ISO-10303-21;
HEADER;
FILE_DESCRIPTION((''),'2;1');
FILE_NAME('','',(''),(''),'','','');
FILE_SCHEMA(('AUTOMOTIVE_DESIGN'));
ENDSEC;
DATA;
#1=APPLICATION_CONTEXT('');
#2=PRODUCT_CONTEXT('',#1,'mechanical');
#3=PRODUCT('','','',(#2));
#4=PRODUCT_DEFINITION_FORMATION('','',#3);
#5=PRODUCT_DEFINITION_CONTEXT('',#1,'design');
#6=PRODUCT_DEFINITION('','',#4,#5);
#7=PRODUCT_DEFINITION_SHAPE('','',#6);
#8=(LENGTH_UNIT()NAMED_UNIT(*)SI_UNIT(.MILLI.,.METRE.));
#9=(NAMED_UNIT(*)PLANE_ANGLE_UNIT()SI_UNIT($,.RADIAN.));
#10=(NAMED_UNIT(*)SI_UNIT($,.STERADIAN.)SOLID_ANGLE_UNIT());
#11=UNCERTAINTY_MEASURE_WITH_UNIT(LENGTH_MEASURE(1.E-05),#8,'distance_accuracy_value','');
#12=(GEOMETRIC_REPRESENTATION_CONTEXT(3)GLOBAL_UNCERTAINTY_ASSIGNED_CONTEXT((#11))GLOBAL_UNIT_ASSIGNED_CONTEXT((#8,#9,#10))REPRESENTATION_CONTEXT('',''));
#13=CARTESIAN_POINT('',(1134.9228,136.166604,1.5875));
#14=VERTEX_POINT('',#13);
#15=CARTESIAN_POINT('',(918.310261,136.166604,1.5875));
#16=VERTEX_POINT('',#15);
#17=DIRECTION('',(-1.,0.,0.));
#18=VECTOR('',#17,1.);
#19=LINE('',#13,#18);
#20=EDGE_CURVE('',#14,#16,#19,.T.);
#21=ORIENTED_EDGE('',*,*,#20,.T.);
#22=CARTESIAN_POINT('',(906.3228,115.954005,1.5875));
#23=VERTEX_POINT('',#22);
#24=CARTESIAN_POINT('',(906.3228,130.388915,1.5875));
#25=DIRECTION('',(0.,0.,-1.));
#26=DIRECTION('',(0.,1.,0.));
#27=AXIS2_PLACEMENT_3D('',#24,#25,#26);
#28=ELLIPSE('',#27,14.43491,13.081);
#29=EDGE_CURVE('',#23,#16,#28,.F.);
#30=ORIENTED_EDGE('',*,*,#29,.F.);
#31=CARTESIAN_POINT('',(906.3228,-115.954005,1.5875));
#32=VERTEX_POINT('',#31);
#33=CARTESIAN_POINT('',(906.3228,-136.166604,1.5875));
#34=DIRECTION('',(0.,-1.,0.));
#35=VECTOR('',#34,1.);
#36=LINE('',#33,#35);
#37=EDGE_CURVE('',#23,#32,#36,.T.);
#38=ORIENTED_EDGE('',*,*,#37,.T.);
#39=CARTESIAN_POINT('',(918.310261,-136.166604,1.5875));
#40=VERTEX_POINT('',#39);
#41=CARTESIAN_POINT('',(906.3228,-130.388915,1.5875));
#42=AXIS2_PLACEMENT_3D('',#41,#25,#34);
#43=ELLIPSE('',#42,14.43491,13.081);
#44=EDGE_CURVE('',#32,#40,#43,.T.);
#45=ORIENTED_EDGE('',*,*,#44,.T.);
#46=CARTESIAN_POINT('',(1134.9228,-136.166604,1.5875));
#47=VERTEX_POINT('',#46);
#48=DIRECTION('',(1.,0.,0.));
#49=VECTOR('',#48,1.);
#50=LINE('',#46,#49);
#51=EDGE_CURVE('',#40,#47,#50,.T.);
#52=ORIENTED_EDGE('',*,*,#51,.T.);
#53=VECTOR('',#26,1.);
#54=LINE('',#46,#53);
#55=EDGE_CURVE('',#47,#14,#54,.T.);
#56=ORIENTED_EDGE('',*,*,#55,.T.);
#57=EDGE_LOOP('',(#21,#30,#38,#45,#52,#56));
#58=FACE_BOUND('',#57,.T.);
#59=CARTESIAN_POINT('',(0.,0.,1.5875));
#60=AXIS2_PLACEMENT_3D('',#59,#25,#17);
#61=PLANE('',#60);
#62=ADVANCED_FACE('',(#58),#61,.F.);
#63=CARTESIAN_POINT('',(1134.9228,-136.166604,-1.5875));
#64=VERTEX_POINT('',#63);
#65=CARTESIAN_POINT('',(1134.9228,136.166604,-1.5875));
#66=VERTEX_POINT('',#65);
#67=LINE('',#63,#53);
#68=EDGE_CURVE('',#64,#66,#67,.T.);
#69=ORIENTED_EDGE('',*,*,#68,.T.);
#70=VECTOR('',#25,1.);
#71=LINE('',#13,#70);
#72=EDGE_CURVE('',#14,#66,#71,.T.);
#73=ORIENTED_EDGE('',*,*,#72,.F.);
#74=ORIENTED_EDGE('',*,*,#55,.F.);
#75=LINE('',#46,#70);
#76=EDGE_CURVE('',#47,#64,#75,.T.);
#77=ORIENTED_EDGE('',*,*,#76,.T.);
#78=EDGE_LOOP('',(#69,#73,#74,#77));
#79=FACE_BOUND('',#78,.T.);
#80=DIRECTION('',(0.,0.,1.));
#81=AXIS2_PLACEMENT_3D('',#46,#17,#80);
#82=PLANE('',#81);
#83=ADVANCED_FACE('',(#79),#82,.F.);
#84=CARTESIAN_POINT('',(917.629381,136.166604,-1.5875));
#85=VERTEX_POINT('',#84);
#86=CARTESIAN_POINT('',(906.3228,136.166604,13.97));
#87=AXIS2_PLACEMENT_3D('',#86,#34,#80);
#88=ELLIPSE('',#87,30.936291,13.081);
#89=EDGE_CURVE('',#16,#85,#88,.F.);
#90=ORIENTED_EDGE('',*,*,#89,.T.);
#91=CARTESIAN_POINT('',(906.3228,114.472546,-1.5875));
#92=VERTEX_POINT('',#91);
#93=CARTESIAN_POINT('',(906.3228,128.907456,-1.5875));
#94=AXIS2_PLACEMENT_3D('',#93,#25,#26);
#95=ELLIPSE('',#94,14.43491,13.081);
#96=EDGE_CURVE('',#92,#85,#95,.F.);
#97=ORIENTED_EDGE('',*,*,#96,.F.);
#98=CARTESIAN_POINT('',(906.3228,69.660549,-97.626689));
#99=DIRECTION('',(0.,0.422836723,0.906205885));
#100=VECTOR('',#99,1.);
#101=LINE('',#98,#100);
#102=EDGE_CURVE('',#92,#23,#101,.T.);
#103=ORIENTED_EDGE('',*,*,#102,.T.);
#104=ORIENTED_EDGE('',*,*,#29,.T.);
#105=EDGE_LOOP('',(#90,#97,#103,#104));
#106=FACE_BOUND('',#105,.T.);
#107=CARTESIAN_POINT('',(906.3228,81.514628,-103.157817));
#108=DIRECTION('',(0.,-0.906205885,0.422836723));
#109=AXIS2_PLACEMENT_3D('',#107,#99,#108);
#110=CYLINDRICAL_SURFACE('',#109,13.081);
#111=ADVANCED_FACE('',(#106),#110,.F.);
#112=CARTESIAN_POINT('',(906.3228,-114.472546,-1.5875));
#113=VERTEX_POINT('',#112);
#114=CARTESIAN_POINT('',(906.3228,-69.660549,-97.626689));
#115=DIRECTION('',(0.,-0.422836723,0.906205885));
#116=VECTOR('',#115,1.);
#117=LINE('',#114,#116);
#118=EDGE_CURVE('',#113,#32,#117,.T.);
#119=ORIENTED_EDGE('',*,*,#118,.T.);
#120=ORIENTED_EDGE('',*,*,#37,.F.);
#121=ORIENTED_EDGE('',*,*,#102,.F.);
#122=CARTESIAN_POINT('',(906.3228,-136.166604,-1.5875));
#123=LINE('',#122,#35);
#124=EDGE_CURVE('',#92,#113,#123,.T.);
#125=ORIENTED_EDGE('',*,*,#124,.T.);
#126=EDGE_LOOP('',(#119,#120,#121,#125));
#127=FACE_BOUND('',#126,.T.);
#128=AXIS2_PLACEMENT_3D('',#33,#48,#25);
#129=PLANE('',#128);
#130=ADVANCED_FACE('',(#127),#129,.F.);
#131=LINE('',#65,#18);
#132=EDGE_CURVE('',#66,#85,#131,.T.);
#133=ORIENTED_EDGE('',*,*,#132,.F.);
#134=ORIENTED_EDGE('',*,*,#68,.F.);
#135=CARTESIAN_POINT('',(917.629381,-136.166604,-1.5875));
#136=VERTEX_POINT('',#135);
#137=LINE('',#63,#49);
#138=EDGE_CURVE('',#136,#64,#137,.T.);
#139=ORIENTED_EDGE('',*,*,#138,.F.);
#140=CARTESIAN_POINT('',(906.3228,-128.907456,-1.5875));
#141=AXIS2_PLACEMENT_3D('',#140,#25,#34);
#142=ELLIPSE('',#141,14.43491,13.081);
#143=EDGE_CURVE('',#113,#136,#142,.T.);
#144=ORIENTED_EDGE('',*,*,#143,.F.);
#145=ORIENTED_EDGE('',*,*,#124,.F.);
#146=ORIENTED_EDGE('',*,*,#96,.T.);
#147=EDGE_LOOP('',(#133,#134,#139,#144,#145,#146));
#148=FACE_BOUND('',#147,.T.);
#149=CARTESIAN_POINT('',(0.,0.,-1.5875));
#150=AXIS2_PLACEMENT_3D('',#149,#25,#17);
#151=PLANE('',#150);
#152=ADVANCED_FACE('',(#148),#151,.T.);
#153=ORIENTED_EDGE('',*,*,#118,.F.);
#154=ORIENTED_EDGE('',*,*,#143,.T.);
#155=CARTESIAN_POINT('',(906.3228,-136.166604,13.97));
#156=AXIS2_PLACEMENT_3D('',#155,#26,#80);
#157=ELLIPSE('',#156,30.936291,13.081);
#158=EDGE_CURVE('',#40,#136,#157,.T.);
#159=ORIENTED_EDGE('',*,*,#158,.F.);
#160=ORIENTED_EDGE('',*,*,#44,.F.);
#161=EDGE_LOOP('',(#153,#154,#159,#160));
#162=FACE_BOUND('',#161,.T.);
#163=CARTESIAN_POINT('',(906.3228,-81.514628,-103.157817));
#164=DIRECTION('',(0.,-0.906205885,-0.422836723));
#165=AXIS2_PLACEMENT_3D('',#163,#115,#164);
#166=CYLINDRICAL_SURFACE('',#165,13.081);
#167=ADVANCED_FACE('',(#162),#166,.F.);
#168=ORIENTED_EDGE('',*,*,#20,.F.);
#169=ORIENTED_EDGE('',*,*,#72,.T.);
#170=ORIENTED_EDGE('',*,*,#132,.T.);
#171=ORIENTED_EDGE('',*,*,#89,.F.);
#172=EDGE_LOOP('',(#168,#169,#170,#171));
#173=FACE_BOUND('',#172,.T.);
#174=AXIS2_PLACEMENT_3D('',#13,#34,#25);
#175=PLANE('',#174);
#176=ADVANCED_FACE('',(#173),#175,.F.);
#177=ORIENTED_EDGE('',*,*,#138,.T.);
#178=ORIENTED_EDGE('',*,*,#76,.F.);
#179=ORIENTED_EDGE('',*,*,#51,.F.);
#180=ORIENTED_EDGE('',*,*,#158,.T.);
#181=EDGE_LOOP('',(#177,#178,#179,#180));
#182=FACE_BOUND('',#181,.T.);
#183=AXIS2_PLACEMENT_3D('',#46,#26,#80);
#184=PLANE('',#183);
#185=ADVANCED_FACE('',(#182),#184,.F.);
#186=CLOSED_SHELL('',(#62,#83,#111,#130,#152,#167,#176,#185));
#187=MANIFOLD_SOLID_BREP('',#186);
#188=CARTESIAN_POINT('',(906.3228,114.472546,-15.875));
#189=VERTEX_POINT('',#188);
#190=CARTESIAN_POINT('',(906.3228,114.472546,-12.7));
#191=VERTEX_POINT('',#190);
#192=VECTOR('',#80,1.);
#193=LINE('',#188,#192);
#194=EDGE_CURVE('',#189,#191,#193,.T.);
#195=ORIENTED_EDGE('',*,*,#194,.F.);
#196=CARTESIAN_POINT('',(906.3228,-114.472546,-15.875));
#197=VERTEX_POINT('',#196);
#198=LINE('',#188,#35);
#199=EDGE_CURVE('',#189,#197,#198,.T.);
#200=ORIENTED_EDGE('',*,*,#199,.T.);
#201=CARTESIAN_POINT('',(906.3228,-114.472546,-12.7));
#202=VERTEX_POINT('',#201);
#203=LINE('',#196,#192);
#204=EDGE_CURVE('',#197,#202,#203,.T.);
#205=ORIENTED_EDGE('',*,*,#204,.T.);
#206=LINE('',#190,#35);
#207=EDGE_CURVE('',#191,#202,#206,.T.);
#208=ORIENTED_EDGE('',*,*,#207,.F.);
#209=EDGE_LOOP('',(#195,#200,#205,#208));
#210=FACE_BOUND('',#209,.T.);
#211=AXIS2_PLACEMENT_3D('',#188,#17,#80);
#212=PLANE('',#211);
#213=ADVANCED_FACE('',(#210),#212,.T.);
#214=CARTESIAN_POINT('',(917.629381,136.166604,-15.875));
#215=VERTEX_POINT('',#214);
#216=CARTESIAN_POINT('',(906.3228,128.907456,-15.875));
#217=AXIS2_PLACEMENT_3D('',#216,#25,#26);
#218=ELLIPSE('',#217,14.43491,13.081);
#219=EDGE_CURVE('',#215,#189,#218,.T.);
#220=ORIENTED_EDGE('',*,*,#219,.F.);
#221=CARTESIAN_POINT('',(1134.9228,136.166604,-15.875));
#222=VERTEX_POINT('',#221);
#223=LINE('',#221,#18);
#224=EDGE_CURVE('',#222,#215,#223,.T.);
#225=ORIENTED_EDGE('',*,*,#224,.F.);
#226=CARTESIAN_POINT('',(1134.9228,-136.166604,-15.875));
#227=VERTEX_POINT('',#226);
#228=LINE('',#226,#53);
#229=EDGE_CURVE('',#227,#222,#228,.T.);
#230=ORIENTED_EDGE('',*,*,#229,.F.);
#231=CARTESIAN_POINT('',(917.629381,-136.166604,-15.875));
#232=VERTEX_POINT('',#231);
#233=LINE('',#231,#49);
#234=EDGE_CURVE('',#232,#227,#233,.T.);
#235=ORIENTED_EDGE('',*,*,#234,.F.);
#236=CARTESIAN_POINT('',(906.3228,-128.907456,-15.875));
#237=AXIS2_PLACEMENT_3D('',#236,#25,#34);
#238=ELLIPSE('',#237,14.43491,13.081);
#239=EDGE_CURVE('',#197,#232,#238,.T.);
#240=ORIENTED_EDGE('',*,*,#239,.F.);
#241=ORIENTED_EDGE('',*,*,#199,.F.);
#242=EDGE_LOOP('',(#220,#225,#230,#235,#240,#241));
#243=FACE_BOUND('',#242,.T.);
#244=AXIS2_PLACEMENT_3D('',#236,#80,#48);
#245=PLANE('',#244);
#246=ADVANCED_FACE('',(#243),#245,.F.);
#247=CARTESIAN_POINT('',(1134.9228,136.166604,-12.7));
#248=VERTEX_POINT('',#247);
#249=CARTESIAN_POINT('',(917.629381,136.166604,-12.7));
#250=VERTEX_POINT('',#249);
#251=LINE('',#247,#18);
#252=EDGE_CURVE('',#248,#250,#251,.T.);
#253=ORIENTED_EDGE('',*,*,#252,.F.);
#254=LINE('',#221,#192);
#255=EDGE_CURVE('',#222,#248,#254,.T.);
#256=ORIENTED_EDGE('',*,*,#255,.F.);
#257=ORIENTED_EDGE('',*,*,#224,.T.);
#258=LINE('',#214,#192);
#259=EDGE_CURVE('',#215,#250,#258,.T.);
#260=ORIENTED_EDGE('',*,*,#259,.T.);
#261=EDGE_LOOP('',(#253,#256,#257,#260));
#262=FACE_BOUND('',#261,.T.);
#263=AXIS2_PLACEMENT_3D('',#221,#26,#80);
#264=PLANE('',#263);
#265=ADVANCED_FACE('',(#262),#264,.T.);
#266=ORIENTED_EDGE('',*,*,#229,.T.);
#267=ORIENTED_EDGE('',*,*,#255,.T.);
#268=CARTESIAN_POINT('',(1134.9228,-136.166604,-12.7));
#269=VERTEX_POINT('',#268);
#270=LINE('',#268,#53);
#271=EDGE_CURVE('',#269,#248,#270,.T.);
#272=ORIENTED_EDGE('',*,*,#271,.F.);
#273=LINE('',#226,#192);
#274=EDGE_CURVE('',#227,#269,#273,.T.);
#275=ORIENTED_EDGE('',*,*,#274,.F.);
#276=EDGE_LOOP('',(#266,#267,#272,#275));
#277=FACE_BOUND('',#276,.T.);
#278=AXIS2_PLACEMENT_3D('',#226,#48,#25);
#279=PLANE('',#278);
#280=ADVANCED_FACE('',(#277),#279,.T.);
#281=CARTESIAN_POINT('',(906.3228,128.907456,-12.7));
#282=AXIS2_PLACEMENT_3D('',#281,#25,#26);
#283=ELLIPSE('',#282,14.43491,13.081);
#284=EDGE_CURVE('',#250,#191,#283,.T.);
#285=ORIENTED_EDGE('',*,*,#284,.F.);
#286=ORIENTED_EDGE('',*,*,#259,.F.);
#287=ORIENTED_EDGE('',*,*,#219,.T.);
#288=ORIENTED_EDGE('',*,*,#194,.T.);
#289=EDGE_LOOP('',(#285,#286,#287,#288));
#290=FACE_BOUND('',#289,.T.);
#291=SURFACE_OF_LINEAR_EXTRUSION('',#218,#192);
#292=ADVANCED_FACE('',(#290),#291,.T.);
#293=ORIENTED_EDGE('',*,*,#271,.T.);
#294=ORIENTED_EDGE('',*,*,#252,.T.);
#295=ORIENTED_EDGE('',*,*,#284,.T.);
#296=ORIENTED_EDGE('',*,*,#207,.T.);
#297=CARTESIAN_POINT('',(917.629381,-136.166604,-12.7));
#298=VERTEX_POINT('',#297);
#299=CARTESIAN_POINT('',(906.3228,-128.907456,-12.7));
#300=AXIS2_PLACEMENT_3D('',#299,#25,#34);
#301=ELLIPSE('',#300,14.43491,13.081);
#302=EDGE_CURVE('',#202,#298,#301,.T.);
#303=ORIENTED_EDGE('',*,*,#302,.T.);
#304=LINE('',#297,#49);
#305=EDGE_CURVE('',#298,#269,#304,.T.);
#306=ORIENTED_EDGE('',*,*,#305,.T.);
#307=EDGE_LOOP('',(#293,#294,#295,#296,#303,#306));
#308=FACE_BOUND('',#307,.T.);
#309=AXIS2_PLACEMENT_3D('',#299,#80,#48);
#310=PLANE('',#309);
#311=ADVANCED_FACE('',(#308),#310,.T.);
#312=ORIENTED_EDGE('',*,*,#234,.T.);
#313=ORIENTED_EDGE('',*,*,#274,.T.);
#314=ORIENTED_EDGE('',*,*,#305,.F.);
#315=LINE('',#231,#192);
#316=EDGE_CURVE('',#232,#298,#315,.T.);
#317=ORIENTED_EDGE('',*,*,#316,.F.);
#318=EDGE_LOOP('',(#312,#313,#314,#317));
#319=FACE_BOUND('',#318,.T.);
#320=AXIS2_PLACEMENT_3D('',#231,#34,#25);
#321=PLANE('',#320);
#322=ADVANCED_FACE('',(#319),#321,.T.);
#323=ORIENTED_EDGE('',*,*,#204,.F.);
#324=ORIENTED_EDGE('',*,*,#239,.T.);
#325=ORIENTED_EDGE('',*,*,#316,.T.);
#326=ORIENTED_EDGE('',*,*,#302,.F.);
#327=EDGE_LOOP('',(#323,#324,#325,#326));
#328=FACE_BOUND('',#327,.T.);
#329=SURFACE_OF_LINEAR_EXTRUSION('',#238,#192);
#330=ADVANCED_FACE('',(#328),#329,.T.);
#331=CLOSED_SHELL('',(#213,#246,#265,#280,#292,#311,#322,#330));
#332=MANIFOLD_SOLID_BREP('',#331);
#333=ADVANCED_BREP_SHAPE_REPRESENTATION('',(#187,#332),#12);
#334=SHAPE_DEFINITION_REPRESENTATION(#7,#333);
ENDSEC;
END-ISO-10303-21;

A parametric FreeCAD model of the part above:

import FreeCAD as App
import Part
import Sketcher

V = App.Vector
Q = App.Units.Quantity

doc = App.newDocument("Part")
body = doc.addObject("PartDesign::Body", "Body")

# Sketch on XY plane
sketch1 = body.newObject("Sketcher::SketchObject", "Sketch")
sketch1.AttachmentSupport = (doc.getObject("XY_Plane"), [""])
sketch1.MapMode = "FlatFace"
sketch1.addGeometry([
    Part.LineSegment(V(906, 136, 0), V(906, -136, 0)),
    Part.LineSegment(V(906, -136, 0), V(1135, -136, 0)),
    Part.LineSegment(V(1135, -136, 0), V(1135, 136, 0)),
    Part.LineSegment(V(1135, 136, 0), V(906, 136, 0)),
], False)
sketch1.addConstraint([
    Sketcher.Constraint("Coincident", 0, 2, 1, 1),
    Sketcher.Constraint("Coincident", 1, 2, 2, 1),
    Sketcher.Constraint("Coincident", 2, 2, 3, 1),
    Sketcher.Constraint("Coincident", 3, 2, 0, 1),
    Sketcher.Constraint("Vertical", 0),
    Sketcher.Constraint("Horizontal", 1),
    Sketcher.Constraint("Vertical", 2),
    Sketcher.Constraint("Horizontal", 3),
    Sketcher.Constraint("DistanceX", 1, 1, 1, 2, Q("9 in")),
    Sketcher.Constraint("DistanceX", -1, 1, 0, 2, Q("35.682 in")),
    Sketcher.Constraint("DistanceY", 0, 2, 0, 1, 272.333207),
    Sketcher.Constraint("DistanceY", 0, 2, -1, 1, 136.166604),
])
pad1 = body.newObject("PartDesign::Pad", "Pad")
pad1.Profile = sketch1
pad1.Length = Q("0.125 in")
pad1.Midplane = True

# Sketch on an angled plane
sketch2 = body.newObject("Sketcher::SketchObject", "Sketch001")
sketch2.Placement = App.Placement(V(906.3228, 136.166604, 13.97), App.Rotation(V(-1, 0, 0), V(0, 0.906205885, -0.422836723), V(0, -0.422836723, -0.906205885), "ZXY"))
sketch2.addGeometry(Part.Circle(V(0, 0, 0), V(0, 0, 1), 13), False)
sketch2.addConstraint([
    Sketcher.Constraint("Coincident", 0, 3, -1, 1),
    Sketcher.Constraint("Diameter", 0, Q("1.03 in")),
])
pocket1 = body.newObject("PartDesign::Pocket", "Pocket")
pocket1.Profile = sketch2
pocket1.Type = "ThroughAll"
pocket1.Reversed = True
doc.recompute()

mirrored = body.newObject("PartDesign::Mirrored", "Mirrored")
mirrored.Originals = [pocket1]
mirrored.MirrorPlane = (doc.getObject("XZ_Plane"), [""])
body.Tip = mirrored
body2 = doc.addObject("PartDesign::Body", "Body001")

# Sketch on XY plane
sketch3 = body2.newObject("Sketcher::SketchObject", "Sketch002")
sketch3.AttachmentSupport = (doc.getObject("XY_Plane001"), [""])
sketch3.MapMode = "FlatFace"
sketch3.AttachmentOffset = App.Placement(V(0, 0, -0.5 * 25.4), App.Rotation())
sketch3.addGeometry([
    Part.LineSegment(V(906.3228, 114.472546, 0), V(906.3228, -114.472546, 0)),  # 0
    Part.BSplineCurve([V(917.629381, -136.166604, 0), V(929.067349, -114.472546, 0), V(906.3228, -114.472546, 0)], [3, 3], [1.043859165, 3.141592654], False, 2, [1, 0.49855374, 1], False),  # 1
    Part.LineSegment(V(917.629381, -136.166604, 0), V(1134.9228, -136.166604, 0)),  # 2
    Part.LineSegment(V(1134.9228, -136.166604, 0), V(1134.9228, 136.166604, 0)),  # 3
    Part.LineSegment(V(1134.9228, 136.166604, 0), V(917.629381, 136.166604, 0)),  # 4
    Part.BSplineCurve([V(906.3228, 114.472546, 0), V(929.067349, 114.472546, 0), V(917.629381, 136.166604, 0)], [3, 3], [3.141592654, 5.239326142], False, 2, [1, 0.49855374, 1], False),  # 5
], False)
sketch3.addConstraint([
    Sketcher.Constraint("Block", 1),
    Sketcher.Constraint("Block", 5),
    Sketcher.Constraint("Coincident", 0, 2, 1, 2),
    Sketcher.Constraint("Coincident", 1, 1, 2, 1),
    Sketcher.Constraint("Coincident", 2, 2, 3, 1),
    Sketcher.Constraint("Coincident", 3, 2, 4, 1),
    Sketcher.Constraint("Coincident", 4, 2, 5, 2),
    Sketcher.Constraint("Coincident", 5, 1, 0, 1),
    Sketcher.Constraint("Horizontal", 2),
    Sketcher.Constraint("Vertical", 3),
    Sketcher.Constraint("Horizontal", 4),
    Sketcher.Constraint("DistanceX", 0, 2, 2, 2, Q("9 in")),
])
pad2 = body2.newObject("PartDesign::Pad", "Pad001")
pad2.Profile = sketch3
pad2.Length = Q("0.125 in")
pad2.Reversed = True

doc.recompute()
